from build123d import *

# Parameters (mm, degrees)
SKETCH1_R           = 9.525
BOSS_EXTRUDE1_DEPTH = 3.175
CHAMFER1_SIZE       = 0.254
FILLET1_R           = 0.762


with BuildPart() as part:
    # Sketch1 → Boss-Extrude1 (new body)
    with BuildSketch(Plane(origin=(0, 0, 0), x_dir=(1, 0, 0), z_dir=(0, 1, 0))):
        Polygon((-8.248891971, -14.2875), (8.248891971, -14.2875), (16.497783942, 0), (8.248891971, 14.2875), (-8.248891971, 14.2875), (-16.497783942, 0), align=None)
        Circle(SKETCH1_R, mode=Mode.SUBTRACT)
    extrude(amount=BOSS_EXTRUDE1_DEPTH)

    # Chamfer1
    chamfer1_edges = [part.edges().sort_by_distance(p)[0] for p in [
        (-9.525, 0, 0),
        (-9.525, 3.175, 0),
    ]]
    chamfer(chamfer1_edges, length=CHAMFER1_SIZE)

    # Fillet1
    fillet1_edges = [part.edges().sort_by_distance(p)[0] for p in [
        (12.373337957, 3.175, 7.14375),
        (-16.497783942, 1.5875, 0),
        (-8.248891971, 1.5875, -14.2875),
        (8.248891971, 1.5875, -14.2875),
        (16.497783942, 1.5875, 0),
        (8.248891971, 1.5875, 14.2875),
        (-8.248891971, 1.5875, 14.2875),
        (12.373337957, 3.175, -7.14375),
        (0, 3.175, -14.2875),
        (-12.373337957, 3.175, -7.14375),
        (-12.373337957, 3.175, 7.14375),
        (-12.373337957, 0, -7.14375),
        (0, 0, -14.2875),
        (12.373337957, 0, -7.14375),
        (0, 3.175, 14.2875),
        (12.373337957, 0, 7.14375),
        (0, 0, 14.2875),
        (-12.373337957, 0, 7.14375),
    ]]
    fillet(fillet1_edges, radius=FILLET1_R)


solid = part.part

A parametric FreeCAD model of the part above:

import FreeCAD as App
import Part
import Sketcher
Q = App.Units.Quantity


def edges_at(feature, points):
    """Names of the edges that pass closest to the given points."""
    edges = feature.Shape.Edges
    near = lambda p: min(range(len(edges)), key=lambda i: edges[i].distToShape(Part.Vertex(*p))[0])
    return sorted({f"Edge{near(p) + 1}" for p in points})


def add_polygon(sketch, points):
    """Adds a closed chain of lines whose ends are joined by coincident constraints."""
    first, n = sketch.GeometryCount, len(points)
    for a, b in zip(points, points[1:] + points[:1]):
        sketch.addGeometry(Part.LineSegment(App.Vector(*a, 0), App.Vector(*b, 0)), False)
    for i in range(n):
        sketch.addConstraint(Sketcher.Constraint("Coincident", first + i, 2, first + (i + 1) % n, 1))

doc = App.newDocument("Part")
body = doc.addObject("PartDesign::Body", "Body")

# Sketch on XZ plane
sketch1 = body.newObject("Sketcher::SketchObject", "Sketch")
sketch1.AttachmentSupport = (doc.getObject("XZ_Plane"), [""])
sketch1.MapMode = "FlatFace"
add_polygon(sketch1, [(-8, 14), (8, 14), (16, 0), (8, -14), (-8, -14), (-16, 0)])  # lines 0-5
sketch1.addGeometry(Part.Circle(App.Vector(0, 0, 0), App.Vector(0, 0, 1), 10), False)  # 6
sketch1.addConstraint(Sketcher.Constraint("Horizontal", 0))
sketch1.addConstraint(Sketcher.Constraint("Horizontal", 3))
sketch1.addConstraint(Sketcher.Constraint("Coincident", 6, 3, -1, 1))
sketch1.addConstraint(Sketcher.Constraint("Symmetric", 0, 2, 3, 2, -1, 1))
sketch1.addConstraint(Sketcher.Constraint("Symmetric", 1, 2, 4, 2, -1, 1))
sketch1.addConstraint(Sketcher.Constraint("PointOnObject", 1, 2, -1))
sketch1.addConstraint(Sketcher.Constraint("Parallel", 2, 5))
sketch1.addConstraint(Sketcher.Constraint("Vertical", 0, 2, 2, 2))
sketch1.addConstraint(Sketcher.Constraint("Diameter", 6, Q("0.75 in")))
sketch1.addConstraint(Sketcher.Constraint("Angle", 1, Q("-60 deg")))
sketch1.addConstraint(Sketcher.Constraint("DistanceY", -1, 1, 0, 2, Q("0.5625 in")))
sketch1.addConstraint(Sketcher.Constraint("DistanceX", 0, 1, 0, 2, Q("16.497784 mm")))
pad1 = body.newObject("PartDesign::Pad", "Pad")
pad1.Profile = sketch1
pad1.Length = Q("0.125 in")
pad1.Reversed = True
doc.recompute()

chamfer = body.newObject("PartDesign::Chamfer", "Chamfer")
chamfer.Base = (pad1, edges_at(pad1, [(-9.525, 0, 0), (-9.525, 3.175, 0)]))
chamfer.Size = Q("0.01 in")
doc.recompute()

fillet = body.newObject("PartDesign::Fillet", "Fillet")
fillet.Base = (chamfer, edges_at(chamfer, [
    (12.373, 3.175, 7.144),
    (-16.498, 1.587, 0),
    (-8.249, 1.587, -14.287),
    (8.249, 1.587, -14.287),
    (16.498, 1.587, 0),
    (8.249, 1.587, 14.287),
    (-8.249, 1.587, 14.287),
    (12.373, 3.175, -7.144),
    (0, 3.175, -14.287),
    (-12.373, 3.175, -7.144),
    (-12.373, 3.175, 7.144),
    (-12.373, 0, -7.144),
    (0, 0, -14.287),
    (12.373, 0, -7.144),
    (0, 3.175, 14.287),
    (12.373, 0, 7.144),
    (0, 0, 14.287),
    (-12.373, 0, 7.144),
]))
fillet.Radius = Q("0.03 in")

doc.recompute()
